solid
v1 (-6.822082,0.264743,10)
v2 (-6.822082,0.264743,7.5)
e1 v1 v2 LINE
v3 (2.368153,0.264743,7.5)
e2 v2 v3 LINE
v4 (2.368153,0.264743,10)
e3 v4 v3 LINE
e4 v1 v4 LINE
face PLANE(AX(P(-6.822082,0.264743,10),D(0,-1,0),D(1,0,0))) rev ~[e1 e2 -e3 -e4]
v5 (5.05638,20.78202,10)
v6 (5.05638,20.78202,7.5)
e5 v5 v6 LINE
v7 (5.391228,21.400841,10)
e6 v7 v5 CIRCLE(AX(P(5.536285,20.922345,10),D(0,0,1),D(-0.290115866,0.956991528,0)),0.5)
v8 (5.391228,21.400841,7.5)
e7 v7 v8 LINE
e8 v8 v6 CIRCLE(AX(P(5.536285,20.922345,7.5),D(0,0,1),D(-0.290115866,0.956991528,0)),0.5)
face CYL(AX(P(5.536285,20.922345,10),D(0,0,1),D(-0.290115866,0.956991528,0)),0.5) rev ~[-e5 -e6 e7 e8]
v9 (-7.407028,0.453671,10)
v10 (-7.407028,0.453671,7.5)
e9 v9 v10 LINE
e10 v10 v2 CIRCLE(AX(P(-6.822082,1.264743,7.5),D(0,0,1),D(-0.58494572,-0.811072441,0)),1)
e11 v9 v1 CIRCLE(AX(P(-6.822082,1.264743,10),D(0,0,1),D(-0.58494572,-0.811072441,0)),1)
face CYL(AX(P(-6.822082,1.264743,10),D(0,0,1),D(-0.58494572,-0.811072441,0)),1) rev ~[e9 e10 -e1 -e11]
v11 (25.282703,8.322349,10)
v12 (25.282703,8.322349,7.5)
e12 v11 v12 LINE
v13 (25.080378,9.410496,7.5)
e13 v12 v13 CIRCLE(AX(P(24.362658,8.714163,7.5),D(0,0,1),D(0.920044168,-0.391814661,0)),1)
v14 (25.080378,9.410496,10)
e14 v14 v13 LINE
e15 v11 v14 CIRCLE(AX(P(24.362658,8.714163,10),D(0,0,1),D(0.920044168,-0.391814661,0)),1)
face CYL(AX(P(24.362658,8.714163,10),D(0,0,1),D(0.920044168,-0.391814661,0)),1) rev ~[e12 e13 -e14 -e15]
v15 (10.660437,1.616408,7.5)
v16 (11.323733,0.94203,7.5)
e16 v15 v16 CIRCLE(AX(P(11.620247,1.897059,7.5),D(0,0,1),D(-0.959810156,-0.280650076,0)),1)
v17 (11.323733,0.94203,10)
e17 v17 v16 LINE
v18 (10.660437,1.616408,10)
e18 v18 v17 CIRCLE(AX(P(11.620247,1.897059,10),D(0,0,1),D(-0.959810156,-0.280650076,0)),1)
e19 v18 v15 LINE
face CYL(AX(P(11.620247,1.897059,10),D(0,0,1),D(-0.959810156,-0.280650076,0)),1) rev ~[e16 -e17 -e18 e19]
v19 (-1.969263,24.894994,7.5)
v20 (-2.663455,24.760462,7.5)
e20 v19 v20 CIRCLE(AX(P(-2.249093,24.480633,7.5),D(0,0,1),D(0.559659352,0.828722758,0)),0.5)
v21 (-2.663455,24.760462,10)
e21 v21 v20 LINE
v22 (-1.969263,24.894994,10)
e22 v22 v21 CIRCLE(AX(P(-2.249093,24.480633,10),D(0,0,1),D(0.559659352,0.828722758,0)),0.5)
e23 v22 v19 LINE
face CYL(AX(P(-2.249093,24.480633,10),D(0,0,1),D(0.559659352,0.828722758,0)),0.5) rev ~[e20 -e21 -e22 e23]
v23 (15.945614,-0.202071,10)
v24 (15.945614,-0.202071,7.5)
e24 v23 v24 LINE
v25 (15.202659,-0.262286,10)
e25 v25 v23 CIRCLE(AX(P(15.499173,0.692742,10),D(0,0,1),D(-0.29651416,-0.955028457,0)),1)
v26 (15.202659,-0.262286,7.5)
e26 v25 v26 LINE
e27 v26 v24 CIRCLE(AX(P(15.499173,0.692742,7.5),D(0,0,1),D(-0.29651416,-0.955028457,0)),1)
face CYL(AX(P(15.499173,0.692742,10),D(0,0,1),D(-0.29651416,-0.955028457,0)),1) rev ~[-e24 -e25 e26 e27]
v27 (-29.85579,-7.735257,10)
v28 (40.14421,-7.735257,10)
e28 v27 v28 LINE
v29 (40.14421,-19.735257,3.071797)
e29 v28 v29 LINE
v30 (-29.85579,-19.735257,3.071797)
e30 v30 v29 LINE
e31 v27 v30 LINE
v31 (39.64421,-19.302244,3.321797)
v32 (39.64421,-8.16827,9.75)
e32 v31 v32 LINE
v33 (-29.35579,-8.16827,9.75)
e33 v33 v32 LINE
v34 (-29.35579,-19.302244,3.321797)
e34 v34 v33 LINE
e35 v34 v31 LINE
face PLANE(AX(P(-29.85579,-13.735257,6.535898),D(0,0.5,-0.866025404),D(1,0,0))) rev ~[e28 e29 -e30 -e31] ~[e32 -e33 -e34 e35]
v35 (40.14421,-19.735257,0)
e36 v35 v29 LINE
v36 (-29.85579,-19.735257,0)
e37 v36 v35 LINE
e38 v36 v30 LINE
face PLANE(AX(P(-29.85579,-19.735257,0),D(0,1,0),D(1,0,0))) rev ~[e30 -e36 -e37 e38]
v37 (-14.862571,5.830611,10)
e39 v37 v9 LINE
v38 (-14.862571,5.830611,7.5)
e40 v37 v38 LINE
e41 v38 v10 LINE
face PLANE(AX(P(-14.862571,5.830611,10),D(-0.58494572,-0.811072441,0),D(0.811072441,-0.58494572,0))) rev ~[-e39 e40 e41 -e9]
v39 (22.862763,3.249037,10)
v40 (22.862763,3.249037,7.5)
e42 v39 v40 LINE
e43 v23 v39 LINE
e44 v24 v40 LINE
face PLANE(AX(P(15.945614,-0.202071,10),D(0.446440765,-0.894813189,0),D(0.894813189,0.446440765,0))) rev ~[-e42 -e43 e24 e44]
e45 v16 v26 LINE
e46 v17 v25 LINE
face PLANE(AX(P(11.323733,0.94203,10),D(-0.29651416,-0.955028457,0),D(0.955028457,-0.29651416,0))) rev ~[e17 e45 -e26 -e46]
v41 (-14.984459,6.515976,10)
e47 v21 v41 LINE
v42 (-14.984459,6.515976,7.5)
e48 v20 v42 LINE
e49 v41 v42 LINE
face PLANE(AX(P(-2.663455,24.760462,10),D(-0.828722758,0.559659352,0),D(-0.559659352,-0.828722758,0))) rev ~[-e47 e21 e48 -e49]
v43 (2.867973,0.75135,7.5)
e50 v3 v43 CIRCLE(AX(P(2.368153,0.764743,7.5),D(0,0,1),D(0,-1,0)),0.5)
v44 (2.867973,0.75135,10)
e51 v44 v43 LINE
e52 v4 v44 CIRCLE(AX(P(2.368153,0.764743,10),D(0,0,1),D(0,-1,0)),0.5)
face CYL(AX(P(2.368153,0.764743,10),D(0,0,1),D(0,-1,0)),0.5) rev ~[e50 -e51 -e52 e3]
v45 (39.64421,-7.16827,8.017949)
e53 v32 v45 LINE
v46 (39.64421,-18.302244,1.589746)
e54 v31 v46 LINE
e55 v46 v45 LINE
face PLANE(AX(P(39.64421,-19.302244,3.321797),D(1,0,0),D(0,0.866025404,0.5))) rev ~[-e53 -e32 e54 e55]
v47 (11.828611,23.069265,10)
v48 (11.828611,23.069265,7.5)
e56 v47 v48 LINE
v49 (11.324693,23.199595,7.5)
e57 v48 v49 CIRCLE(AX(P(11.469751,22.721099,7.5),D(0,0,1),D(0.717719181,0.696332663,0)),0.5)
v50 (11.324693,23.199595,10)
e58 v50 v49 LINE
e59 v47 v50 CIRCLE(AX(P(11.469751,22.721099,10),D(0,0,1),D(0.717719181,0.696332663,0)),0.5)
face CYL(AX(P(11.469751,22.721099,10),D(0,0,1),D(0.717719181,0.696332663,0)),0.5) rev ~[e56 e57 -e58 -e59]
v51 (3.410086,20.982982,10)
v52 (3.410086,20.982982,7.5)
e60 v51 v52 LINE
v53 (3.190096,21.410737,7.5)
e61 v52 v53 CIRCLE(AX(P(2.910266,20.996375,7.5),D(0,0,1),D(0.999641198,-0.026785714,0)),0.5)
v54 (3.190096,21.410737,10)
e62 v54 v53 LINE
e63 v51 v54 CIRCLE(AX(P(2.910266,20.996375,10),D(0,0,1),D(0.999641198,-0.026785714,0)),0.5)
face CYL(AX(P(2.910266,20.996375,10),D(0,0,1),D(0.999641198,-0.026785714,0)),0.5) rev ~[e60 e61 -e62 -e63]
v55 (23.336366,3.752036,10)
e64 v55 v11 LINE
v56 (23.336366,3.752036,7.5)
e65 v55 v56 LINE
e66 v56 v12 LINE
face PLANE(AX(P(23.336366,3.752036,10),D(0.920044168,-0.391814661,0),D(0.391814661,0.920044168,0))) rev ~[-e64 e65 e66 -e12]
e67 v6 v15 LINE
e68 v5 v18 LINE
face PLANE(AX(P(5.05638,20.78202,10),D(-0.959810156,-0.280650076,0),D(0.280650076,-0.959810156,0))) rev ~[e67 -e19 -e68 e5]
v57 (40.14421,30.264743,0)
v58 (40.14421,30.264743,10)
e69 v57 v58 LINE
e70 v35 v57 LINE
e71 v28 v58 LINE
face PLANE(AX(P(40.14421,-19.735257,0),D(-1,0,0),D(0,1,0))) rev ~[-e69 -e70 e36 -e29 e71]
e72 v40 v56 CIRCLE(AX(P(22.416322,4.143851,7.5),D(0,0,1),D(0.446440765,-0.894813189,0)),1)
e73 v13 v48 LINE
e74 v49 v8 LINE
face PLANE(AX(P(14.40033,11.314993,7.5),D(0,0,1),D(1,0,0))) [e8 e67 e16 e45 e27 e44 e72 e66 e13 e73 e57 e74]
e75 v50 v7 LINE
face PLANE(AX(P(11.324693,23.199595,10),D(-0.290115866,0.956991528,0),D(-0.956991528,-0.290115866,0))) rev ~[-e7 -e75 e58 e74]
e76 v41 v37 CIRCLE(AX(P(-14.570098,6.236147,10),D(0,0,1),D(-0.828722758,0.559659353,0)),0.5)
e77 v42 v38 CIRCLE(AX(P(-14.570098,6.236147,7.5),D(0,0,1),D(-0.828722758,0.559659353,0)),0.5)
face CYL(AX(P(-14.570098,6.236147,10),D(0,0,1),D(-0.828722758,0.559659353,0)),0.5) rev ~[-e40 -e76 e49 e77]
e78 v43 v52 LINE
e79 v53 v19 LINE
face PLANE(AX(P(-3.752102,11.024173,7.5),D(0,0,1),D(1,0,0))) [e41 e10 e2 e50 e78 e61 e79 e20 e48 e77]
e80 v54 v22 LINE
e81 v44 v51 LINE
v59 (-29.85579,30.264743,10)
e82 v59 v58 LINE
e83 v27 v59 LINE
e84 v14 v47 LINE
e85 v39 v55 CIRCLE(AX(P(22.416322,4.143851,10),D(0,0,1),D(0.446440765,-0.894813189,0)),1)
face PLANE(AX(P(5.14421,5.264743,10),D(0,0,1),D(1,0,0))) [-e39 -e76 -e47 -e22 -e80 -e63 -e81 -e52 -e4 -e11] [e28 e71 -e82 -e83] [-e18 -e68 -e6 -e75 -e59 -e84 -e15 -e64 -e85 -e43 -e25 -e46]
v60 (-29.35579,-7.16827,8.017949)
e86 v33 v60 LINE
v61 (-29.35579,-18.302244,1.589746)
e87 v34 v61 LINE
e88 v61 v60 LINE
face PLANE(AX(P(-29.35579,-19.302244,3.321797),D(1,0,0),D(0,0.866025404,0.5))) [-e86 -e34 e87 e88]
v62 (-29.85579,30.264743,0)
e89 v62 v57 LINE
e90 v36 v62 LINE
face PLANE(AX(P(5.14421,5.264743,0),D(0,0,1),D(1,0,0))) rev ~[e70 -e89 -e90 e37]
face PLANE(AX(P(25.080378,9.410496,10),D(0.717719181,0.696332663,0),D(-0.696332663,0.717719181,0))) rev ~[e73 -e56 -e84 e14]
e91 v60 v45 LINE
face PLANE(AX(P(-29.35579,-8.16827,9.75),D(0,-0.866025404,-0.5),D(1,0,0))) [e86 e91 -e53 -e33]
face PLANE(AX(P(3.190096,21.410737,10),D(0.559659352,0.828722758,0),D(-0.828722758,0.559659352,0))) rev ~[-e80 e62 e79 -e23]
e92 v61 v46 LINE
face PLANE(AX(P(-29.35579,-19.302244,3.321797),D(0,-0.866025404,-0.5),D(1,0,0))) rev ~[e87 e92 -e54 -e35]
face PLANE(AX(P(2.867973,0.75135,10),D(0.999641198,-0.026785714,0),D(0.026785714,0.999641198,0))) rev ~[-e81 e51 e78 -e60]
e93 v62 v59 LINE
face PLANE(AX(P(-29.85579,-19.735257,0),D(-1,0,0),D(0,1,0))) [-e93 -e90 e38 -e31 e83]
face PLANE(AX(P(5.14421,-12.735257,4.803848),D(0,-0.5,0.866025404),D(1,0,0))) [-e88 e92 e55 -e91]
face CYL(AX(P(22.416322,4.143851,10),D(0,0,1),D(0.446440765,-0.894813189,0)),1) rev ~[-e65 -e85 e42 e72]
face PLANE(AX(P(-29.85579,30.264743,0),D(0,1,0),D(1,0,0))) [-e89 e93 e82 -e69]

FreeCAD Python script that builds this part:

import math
import FreeCAD as App
import Part
import Sketcher

V = App.Vector


def edges_at(feature, points):
    """Names of the edges that pass closest to the given points."""
    edges = feature.Shape.Edges
    near = lambda p: min(range(len(edges)), key=lambda i: edges[i].distToShape(Part.Vertex(*p))[0])
    return sorted({f"Edge{near(p) + 1}" for p in points})


def add_polygon(sketch, points):
    """Adds a closed chain of lines whose ends are joined by coincident constraints."""
    first, n = sketch.GeometryCount, len(points)
    for a, b in zip(points, points[1:] + points[:1]):
        sketch.addGeometry(Part.LineSegment(App.Vector(*a, 0), App.Vector(*b, 0)), False)
    for i in range(n):
        sketch.addConstraint(Sketcher.Constraint("Coincident", first + i, 2, first + (i + 1) % n, 1))

doc = App.newDocument("Part")
params = doc.addObject("Spreadsheet::Sheet", "Params")
for row, (alias, value) in enumerate([
    ("sketch1_width", "70 mm"),
    ("sketch1_height", "50 mm"),
    ("pad1_length", "10 mm"),
    ("chamfer_size", "12 mm"),
    ("chamfer_size2", "6.928203 mm"),
    ("sketch2_radius", "1 mm"),
    ("sketch2_radius2", "1 mm"),
    ("sketch2_radius3", "1 mm"),
    ("sketch2_radius4", "1 mm"),
    ("sketch2_radius5", "1 mm"),
    ("pocket1_length", "2.5 mm"),
    ("sketch3_width", "69 mm"),
    ("pocket2_length", "2 mm"),
], start=1):
    params.set(f"A{row}", alias)
    params.set(f"B{row}", "=" + value)
    params.setAlias(f"B{row}", alias)

body = doc.addObject("PartDesign::Body", "Body")

# Sketch on XY plane
sketch1 = body.newObject("Sketcher::SketchObject", "Sketch")
sketch1.AttachmentSupport = (doc.getObject("XY_Plane"), [""])
sketch1.MapMode = "FlatFace"
add_polygon(sketch1, [(-30, 30), (-30, -20), (40, -20), (40, 30)])  # lines 0-3
sketch1.addConstraint([
    Sketcher.Constraint("Vertical", 0),
    Sketcher.Constraint("Horizontal", 1),
    Sketcher.Constraint("Vertical", 2),
    Sketcher.Constraint("Horizontal", 3),
    Sketcher.Constraint("DistanceX", 1, 1, 1, 2, 70.0),
    Sketcher.Constraint("DistanceY", 0, 2, 0, 1, 50.0),
    Sketcher.Constraint("DistanceX", 0, 2, -1, 1, 29.85579),
    Sketcher.Constraint("DistanceY", 0, 2, -1, 1, 19.735257),
])
sketch1.setExpression("Constraints[8]", "Params.sketch1_width")
sketch1.setExpression("Constraints[9]", "Params.sketch1_height")
pad1 = body.newObject("PartDesign::Pad", "Pad")
pad1.Profile = sketch1
pad1.setExpression("Length", "Params.pad1_length")
doc.recompute()

chamfer = body.newObject("PartDesign::Chamfer", "Chamfer")
chamfer.Base = (pad1, edges_at(pad1, [(5.144, -19.735, 10)]))
chamfer.ChamferType = "Two distances"
chamfer.setExpression("Size", "Params.chamfer_size")
chamfer.setExpression("Size2", "Params.chamfer_size2")
chamfer.FlipDirection = True

# Sketch on XY plane
sketch2 = body.newObject("Sketcher::SketchObject", "Sketch001")
sketch2.AttachmentSupport = (doc.getObject("XY_Plane"), [""])
sketch2.MapMode = "FlatFace"
sketch2.AttachmentOffset = App.Placement(V(0, 0, 10), App.Rotation())
sketch2.addGeometry([
    Part.ArcOfCircle(Part.Circle(V(-2.249093, 24.480633, 0), V(0, 0, 1), 0.5), math.radians(55.967757), math.radians(145.967757)),  # 0
    Part.LineSegment(V(-2.663455, 24.760462, 0), V(-14.984459, 6.515976, 0)),  # 1
    Part.ArcOfCircle(Part.Circle(V(-14.570098, 6.236147, 0), V(0, 0, 1), 0.5), math.radians(145.967757), math.radians(234.200844)),  # 2
    Part.LineSegment(V(-14.862571, 5.830611, 0), V(-7.407028, 0.453671, 0)),  # 3
    Part.ArcOfCircle(Part.Circle(V(-6.822082, 1.264743, 0), V(0, 0, 1), 1), math.radians(-125.799156), math.radians(-90)),  # 4
    Part.LineSegment(V(-6.822082, 0.264743, 0), V(2.368153, 0.264743, 0)),  # 5
    Part.ArcOfCircle(Part.Circle(V(2.368153, 0.764743, 0), V(0, 0, 1), 0.5), math.radians(-90), math.radians(-1.534892)),  # 6
    Part.LineSegment(V(2.867973, 0.75135, 0), V(3.410086, 20.982982, 0)),  # 7
    Part.ArcOfCircle(Part.Circle(V(2.910266, 20.996375, 0), V(0, 0, 1), 0.5), math.radians(-1.534892), math.radians(55.967757)),  # 8
    Part.LineSegment(V(3.190096, 21.410737, 0), V(-1.969263, 24.894994, 0)),  # 9
    Part.ArcOfCircle(Part.Circle(V(11.469751, 22.721099, 0), V(0, 0, 1), 0.5), math.radians(44.133509), math.radians(106.864893)),  # 10
    Part.LineSegment(V(11.324693, 23.199595, 0), V(5.391228, 21.400841, 0)),  # 11
    Part.ArcOfCircle(Part.Circle(V(5.536285, 20.922345, 0), V(0, 0, 1), 0.5), math.radians(106.864893), math.radians(196.299007)),  # 12
    Part.LineSegment(V(5.05638, 20.78202, 0), V(10.660437, 1.616408, 0)),  # 13
    Part.ArcOfCircle(Part.Circle(V(11.620247, 1.897059, 0), V(0, 0, 1), 1), math.radians(-163.700993), math.radians(-107.248355)),  # 14
    Part.LineSegment(V(11.323733, 0.94203, 0), V(15.202659, -0.262286, 0)),  # 15
    Part.ArcOfCircle(Part.Circle(V(15.499173, 0.692742, 0), V(0, 0, 1), 1), math.radians(-107.248355), math.radians(-63.484445)),  # 16
    Part.LineSegment(V(15.945614, -0.202071, 0), V(22.862763, 3.249037, 0)),  # 17
    Part.ArcOfCircle(Part.Circle(V(22.416322, 4.143851, 0), V(0, 0, 1), 1), math.radians(-63.484445), math.radians(-23.06746)),  # 18
    Part.LineSegment(V(23.336366, 3.752036, 0), V(25.282703, 8.322349, 0)),  # 19
    Part.ArcOfCircle(Part.Circle(V(24.362658, 8.714163, 0), V(0, 0, 1), 1), math.radians(-23.06746), math.radians(44.133509)),  # 20
    Part.LineSegment(V(25.080378, 9.410496, 0), V(11.828611, 23.069265, 0)),  # 21
], False)
sketch2.addConstraint([
    Sketcher.Constraint("Coincident", 0, 2, 1, 1),
    Sketcher.Constraint("Coincident", 1, 2, 2, 1),
    Sketcher.Constraint("Coincident", 2, 2, 3, 1),
    Sketcher.Constraint("Coincident", 3, 2, 4, 1),
    Sketcher.Constraint("Coincident", 4, 2, 5, 1),
    Sketcher.Constraint("Coincident", 5, 2, 6, 1),
    Sketcher.Constraint("Coincident", 6, 2, 7, 1),
    Sketcher.Constraint("Coincident", 7, 2, 8, 1),
    Sketcher.Constraint("Coincident", 8, 2, 9, 1),
    Sketcher.Constraint("Coincident", 9, 2, 0, 1),
    Sketcher.Constraint("Coincident", 10, 2, 11, 1),
    Sketcher.Constraint("Coincident", 11, 2, 12, 1),
    Sketcher.Constraint("Coincident", 12, 2, 13, 1),
    Sketcher.Constraint("Coincident", 13, 2, 14, 1),
    Sketcher.Constraint("Coincident", 14, 2, 15, 1),
    Sketcher.Constraint("Coincident", 15, 2, 16, 1),
    Sketcher.Constraint("Coincident", 16, 2, 17, 1),
    Sketcher.Constraint("Coincident", 17, 2, 18, 1),
    Sketcher.Constraint("Coincident", 18, 2, 19, 1),
    Sketcher.Constraint("Coincident", 19, 2, 20, 1),
    Sketcher.Constraint("Coincident", 20, 2, 21, 1),
    Sketcher.Constraint("Coincident", 21, 2, 10, 1),
    Sketcher.Constraint("Horizontal", 5),
    Sketcher.Constraint("Radius", 4, 1.0),
    Sketcher.Constraint("Radius", 14, 1.0),
    Sketcher.Constraint("Radius", 16, 1.0),
    Sketcher.Constraint("Radius", 18, 1.0),
    Sketcher.Constraint("Radius", 20, 1.0),
    Sketcher.Constraint("Radius", 0, 0.5),
    Sketcher.Constraint("Radius", 2, 0.5),
    Sketcher.Constraint("Radius", 6, 0.5),
    Sketcher.Constraint("Radius", 8, 0.5),
    Sketcher.Constraint("Radius", 10, 0.5),
    Sketcher.Constraint("Radius", 12, 0.5),
    Sketcher.Constraint("DistanceY", 16, 3, 6, 3, 0.072001),
    Sketcher.Constraint("DistanceY", 17, 2, 18, 2, 0.502999),
    Sketcher.Constraint("Distance", 21, 19.030799),
    Sketcher.Constraint("DistanceX", 2, 3, -1, 1, 14.570098),
    Sketcher.Constraint("DistanceY", -1, 1, 10, 3, 22.721099),
    Sketcher.Constraint("DistanceX", 6, 3, 10, 3, 9.101598),
    Sketcher.Constraint("DistanceY", 6, 3, 12, 3, 20.157602),
    Sketcher.Constraint("DistanceX", 7, 2, 12, 3, 2.126199),
    Sketcher.Constraint("DistanceY", 16, 2, 14, 2, 1.144101),
    Sketcher.Constraint("DistanceY", 18, 3, 19, 2, 4.178498),
    Sketcher.Constraint("Distance", 15, 4.061582),
    Sketcher.Constraint("Distance", 17, 7.730272),
    Sketcher.Constraint("DistanceX", 5, 1, 5, 2, 9.190235),
    Sketcher.Constraint("DistanceX", -1, 1, 10, 3, 11.469751),
    Sketcher.Constraint("DistanceY", -1, 1, 14, 3, 1.897059),
    Sketcher.Constraint("DistanceX", -1, 1, 18, 3, 22.416322),
    Sketcher.Constraint("DistanceY", -1, 1, 18, 3, 4.143851),
    Sketcher.Constraint("DistanceX", -1, 1, 20, 3, 24.362658),
    Sketcher.Constraint("DistanceX", 1, 2, -1, 1, 14.984459),
    Sketcher.Constraint("DistanceX", 2, 2, -1, 1, 14.862571),
    Sketcher.Constraint("DistanceY", -1, 1, 2, 2, 5.830611),
    Sketcher.Constraint("DistanceX", 3, 2, -1, 1, 7.407028),
    Sketcher.Constraint("DistanceY", -1, 1, 3, 2, 0.453671),
    Sketcher.Constraint("DistanceY", -1, 1, 6, 2, 0.75135),
    Sketcher.Constraint("DistanceY", -1, 1, 11, 2, 21.400841),
    Sketcher.Constraint("DistanceX", -1, 1, 12, 2, 5.05638),
    Sketcher.Constraint("DistanceY", -1, 1, 12, 2, 20.78202),
    Sketcher.Constraint("DistanceY", -1, 1, 13, 2, 1.616408),
    Sketcher.Constraint("DistanceY", -1, 1, 14, 2, 0.94203),
    Sketcher.Constraint("DistanceX", -1, 1, 15, 2, 15.202659),
    Sketcher.Constraint("DistanceX", -1, 1, 21, 2, 11.828611),
    Sketcher.Constraint("DistanceX", 4, 3, 0, 3, 4.572989),
    Sketcher.Constraint("DistanceY", 4, 3, 0, 3, 23.21589),
    Sketcher.Constraint("DistanceX", 0, 3, 8, 3, 5.159359),
    Sketcher.Constraint("DistanceY", 2, 3, 8, 3, 14.760228),
    Sketcher.Constraint("DistanceX", 8, 3, 12, 3, 2.62602),
    Sketcher.Constraint("DistanceX", 4, 3, 14, 3, 18.442329),
    Sketcher.Constraint("DistanceY", 16, 3, 20, 3, 8.021421),
    Sketcher.Constraint("DistanceX", 0, 2, 0, 3, 0.414361),
    Sketcher.Constraint("DistanceX", 2, 2, 4, 2, 8.040488),
    Sketcher.Constraint("DistanceX", 8, 2, 7, 2, 0.219991),
    Sketcher.Constraint("DistanceX", 0, 3, 9, 2, 0.27983),
    Sketcher.Constraint("DistanceY", 12, 3, 10, 2, 2.27725),
])
sketch2.setExpression("Constraints[23]", "Params.sketch2_radius")
sketch2.setExpression("Constraints[24]", "Params.sketch2_radius2")
sketch2.setExpression("Constraints[25]", "Params.sketch2_radius3")
sketch2.setExpression("Constraints[26]", "Params.sketch2_radius4")
sketch2.setExpression("Constraints[27]", "Params.sketch2_radius5")
pocket1 = body.newObject("PartDesign::Pocket", "Pocket")
pocket1.Profile = sketch2
pocket1.setExpression("Length", "Params.pocket1_length")

# Sketch on an angled plane
sketch3 = body.newObject("Sketcher::SketchObject", "Sketch002")
sketch3.Placement = App.Placement(V(0, -6.263941, 10.849464), App.Rotation(V(1, 0, 0), V(0, 0.866025404, 0.5), V(0, -0.5, 0.866025404), "ZXY"))
add_polygon(sketch3, [(-29, -2), (-29, -15), (40, -15), (40, -2)])  # lines 0-3
sketch3.addConstraint([
    Sketcher.Constraint("Vertical", 0),
    Sketcher.Constraint("Horizontal", 1),
    Sketcher.Constraint("Vertical", 2),
    Sketcher.Constraint("Horizontal", 3),
    Sketcher.Constraint("DistanceX", 1, 1, 1, 2, 69.0),
    Sketcher.Constraint("DistanceY", 0, 2, 0, 1, 12.856406),
    Sketcher.Constraint("DistanceX", 0, 2, -1, 1, 29.35579),
    Sketcher.Constraint("DistanceY", 2, 2, -1, 1, 2.198929),
])
sketch3.setExpression("Constraints[8]", "Params.sketch3_width")
pocket2 = body.newObject("PartDesign::Pocket", "Pocket001")
pocket2.Profile = sketch3
pocket2.setExpression("Length", "Params.pocket2_length")

doc.recompute()
